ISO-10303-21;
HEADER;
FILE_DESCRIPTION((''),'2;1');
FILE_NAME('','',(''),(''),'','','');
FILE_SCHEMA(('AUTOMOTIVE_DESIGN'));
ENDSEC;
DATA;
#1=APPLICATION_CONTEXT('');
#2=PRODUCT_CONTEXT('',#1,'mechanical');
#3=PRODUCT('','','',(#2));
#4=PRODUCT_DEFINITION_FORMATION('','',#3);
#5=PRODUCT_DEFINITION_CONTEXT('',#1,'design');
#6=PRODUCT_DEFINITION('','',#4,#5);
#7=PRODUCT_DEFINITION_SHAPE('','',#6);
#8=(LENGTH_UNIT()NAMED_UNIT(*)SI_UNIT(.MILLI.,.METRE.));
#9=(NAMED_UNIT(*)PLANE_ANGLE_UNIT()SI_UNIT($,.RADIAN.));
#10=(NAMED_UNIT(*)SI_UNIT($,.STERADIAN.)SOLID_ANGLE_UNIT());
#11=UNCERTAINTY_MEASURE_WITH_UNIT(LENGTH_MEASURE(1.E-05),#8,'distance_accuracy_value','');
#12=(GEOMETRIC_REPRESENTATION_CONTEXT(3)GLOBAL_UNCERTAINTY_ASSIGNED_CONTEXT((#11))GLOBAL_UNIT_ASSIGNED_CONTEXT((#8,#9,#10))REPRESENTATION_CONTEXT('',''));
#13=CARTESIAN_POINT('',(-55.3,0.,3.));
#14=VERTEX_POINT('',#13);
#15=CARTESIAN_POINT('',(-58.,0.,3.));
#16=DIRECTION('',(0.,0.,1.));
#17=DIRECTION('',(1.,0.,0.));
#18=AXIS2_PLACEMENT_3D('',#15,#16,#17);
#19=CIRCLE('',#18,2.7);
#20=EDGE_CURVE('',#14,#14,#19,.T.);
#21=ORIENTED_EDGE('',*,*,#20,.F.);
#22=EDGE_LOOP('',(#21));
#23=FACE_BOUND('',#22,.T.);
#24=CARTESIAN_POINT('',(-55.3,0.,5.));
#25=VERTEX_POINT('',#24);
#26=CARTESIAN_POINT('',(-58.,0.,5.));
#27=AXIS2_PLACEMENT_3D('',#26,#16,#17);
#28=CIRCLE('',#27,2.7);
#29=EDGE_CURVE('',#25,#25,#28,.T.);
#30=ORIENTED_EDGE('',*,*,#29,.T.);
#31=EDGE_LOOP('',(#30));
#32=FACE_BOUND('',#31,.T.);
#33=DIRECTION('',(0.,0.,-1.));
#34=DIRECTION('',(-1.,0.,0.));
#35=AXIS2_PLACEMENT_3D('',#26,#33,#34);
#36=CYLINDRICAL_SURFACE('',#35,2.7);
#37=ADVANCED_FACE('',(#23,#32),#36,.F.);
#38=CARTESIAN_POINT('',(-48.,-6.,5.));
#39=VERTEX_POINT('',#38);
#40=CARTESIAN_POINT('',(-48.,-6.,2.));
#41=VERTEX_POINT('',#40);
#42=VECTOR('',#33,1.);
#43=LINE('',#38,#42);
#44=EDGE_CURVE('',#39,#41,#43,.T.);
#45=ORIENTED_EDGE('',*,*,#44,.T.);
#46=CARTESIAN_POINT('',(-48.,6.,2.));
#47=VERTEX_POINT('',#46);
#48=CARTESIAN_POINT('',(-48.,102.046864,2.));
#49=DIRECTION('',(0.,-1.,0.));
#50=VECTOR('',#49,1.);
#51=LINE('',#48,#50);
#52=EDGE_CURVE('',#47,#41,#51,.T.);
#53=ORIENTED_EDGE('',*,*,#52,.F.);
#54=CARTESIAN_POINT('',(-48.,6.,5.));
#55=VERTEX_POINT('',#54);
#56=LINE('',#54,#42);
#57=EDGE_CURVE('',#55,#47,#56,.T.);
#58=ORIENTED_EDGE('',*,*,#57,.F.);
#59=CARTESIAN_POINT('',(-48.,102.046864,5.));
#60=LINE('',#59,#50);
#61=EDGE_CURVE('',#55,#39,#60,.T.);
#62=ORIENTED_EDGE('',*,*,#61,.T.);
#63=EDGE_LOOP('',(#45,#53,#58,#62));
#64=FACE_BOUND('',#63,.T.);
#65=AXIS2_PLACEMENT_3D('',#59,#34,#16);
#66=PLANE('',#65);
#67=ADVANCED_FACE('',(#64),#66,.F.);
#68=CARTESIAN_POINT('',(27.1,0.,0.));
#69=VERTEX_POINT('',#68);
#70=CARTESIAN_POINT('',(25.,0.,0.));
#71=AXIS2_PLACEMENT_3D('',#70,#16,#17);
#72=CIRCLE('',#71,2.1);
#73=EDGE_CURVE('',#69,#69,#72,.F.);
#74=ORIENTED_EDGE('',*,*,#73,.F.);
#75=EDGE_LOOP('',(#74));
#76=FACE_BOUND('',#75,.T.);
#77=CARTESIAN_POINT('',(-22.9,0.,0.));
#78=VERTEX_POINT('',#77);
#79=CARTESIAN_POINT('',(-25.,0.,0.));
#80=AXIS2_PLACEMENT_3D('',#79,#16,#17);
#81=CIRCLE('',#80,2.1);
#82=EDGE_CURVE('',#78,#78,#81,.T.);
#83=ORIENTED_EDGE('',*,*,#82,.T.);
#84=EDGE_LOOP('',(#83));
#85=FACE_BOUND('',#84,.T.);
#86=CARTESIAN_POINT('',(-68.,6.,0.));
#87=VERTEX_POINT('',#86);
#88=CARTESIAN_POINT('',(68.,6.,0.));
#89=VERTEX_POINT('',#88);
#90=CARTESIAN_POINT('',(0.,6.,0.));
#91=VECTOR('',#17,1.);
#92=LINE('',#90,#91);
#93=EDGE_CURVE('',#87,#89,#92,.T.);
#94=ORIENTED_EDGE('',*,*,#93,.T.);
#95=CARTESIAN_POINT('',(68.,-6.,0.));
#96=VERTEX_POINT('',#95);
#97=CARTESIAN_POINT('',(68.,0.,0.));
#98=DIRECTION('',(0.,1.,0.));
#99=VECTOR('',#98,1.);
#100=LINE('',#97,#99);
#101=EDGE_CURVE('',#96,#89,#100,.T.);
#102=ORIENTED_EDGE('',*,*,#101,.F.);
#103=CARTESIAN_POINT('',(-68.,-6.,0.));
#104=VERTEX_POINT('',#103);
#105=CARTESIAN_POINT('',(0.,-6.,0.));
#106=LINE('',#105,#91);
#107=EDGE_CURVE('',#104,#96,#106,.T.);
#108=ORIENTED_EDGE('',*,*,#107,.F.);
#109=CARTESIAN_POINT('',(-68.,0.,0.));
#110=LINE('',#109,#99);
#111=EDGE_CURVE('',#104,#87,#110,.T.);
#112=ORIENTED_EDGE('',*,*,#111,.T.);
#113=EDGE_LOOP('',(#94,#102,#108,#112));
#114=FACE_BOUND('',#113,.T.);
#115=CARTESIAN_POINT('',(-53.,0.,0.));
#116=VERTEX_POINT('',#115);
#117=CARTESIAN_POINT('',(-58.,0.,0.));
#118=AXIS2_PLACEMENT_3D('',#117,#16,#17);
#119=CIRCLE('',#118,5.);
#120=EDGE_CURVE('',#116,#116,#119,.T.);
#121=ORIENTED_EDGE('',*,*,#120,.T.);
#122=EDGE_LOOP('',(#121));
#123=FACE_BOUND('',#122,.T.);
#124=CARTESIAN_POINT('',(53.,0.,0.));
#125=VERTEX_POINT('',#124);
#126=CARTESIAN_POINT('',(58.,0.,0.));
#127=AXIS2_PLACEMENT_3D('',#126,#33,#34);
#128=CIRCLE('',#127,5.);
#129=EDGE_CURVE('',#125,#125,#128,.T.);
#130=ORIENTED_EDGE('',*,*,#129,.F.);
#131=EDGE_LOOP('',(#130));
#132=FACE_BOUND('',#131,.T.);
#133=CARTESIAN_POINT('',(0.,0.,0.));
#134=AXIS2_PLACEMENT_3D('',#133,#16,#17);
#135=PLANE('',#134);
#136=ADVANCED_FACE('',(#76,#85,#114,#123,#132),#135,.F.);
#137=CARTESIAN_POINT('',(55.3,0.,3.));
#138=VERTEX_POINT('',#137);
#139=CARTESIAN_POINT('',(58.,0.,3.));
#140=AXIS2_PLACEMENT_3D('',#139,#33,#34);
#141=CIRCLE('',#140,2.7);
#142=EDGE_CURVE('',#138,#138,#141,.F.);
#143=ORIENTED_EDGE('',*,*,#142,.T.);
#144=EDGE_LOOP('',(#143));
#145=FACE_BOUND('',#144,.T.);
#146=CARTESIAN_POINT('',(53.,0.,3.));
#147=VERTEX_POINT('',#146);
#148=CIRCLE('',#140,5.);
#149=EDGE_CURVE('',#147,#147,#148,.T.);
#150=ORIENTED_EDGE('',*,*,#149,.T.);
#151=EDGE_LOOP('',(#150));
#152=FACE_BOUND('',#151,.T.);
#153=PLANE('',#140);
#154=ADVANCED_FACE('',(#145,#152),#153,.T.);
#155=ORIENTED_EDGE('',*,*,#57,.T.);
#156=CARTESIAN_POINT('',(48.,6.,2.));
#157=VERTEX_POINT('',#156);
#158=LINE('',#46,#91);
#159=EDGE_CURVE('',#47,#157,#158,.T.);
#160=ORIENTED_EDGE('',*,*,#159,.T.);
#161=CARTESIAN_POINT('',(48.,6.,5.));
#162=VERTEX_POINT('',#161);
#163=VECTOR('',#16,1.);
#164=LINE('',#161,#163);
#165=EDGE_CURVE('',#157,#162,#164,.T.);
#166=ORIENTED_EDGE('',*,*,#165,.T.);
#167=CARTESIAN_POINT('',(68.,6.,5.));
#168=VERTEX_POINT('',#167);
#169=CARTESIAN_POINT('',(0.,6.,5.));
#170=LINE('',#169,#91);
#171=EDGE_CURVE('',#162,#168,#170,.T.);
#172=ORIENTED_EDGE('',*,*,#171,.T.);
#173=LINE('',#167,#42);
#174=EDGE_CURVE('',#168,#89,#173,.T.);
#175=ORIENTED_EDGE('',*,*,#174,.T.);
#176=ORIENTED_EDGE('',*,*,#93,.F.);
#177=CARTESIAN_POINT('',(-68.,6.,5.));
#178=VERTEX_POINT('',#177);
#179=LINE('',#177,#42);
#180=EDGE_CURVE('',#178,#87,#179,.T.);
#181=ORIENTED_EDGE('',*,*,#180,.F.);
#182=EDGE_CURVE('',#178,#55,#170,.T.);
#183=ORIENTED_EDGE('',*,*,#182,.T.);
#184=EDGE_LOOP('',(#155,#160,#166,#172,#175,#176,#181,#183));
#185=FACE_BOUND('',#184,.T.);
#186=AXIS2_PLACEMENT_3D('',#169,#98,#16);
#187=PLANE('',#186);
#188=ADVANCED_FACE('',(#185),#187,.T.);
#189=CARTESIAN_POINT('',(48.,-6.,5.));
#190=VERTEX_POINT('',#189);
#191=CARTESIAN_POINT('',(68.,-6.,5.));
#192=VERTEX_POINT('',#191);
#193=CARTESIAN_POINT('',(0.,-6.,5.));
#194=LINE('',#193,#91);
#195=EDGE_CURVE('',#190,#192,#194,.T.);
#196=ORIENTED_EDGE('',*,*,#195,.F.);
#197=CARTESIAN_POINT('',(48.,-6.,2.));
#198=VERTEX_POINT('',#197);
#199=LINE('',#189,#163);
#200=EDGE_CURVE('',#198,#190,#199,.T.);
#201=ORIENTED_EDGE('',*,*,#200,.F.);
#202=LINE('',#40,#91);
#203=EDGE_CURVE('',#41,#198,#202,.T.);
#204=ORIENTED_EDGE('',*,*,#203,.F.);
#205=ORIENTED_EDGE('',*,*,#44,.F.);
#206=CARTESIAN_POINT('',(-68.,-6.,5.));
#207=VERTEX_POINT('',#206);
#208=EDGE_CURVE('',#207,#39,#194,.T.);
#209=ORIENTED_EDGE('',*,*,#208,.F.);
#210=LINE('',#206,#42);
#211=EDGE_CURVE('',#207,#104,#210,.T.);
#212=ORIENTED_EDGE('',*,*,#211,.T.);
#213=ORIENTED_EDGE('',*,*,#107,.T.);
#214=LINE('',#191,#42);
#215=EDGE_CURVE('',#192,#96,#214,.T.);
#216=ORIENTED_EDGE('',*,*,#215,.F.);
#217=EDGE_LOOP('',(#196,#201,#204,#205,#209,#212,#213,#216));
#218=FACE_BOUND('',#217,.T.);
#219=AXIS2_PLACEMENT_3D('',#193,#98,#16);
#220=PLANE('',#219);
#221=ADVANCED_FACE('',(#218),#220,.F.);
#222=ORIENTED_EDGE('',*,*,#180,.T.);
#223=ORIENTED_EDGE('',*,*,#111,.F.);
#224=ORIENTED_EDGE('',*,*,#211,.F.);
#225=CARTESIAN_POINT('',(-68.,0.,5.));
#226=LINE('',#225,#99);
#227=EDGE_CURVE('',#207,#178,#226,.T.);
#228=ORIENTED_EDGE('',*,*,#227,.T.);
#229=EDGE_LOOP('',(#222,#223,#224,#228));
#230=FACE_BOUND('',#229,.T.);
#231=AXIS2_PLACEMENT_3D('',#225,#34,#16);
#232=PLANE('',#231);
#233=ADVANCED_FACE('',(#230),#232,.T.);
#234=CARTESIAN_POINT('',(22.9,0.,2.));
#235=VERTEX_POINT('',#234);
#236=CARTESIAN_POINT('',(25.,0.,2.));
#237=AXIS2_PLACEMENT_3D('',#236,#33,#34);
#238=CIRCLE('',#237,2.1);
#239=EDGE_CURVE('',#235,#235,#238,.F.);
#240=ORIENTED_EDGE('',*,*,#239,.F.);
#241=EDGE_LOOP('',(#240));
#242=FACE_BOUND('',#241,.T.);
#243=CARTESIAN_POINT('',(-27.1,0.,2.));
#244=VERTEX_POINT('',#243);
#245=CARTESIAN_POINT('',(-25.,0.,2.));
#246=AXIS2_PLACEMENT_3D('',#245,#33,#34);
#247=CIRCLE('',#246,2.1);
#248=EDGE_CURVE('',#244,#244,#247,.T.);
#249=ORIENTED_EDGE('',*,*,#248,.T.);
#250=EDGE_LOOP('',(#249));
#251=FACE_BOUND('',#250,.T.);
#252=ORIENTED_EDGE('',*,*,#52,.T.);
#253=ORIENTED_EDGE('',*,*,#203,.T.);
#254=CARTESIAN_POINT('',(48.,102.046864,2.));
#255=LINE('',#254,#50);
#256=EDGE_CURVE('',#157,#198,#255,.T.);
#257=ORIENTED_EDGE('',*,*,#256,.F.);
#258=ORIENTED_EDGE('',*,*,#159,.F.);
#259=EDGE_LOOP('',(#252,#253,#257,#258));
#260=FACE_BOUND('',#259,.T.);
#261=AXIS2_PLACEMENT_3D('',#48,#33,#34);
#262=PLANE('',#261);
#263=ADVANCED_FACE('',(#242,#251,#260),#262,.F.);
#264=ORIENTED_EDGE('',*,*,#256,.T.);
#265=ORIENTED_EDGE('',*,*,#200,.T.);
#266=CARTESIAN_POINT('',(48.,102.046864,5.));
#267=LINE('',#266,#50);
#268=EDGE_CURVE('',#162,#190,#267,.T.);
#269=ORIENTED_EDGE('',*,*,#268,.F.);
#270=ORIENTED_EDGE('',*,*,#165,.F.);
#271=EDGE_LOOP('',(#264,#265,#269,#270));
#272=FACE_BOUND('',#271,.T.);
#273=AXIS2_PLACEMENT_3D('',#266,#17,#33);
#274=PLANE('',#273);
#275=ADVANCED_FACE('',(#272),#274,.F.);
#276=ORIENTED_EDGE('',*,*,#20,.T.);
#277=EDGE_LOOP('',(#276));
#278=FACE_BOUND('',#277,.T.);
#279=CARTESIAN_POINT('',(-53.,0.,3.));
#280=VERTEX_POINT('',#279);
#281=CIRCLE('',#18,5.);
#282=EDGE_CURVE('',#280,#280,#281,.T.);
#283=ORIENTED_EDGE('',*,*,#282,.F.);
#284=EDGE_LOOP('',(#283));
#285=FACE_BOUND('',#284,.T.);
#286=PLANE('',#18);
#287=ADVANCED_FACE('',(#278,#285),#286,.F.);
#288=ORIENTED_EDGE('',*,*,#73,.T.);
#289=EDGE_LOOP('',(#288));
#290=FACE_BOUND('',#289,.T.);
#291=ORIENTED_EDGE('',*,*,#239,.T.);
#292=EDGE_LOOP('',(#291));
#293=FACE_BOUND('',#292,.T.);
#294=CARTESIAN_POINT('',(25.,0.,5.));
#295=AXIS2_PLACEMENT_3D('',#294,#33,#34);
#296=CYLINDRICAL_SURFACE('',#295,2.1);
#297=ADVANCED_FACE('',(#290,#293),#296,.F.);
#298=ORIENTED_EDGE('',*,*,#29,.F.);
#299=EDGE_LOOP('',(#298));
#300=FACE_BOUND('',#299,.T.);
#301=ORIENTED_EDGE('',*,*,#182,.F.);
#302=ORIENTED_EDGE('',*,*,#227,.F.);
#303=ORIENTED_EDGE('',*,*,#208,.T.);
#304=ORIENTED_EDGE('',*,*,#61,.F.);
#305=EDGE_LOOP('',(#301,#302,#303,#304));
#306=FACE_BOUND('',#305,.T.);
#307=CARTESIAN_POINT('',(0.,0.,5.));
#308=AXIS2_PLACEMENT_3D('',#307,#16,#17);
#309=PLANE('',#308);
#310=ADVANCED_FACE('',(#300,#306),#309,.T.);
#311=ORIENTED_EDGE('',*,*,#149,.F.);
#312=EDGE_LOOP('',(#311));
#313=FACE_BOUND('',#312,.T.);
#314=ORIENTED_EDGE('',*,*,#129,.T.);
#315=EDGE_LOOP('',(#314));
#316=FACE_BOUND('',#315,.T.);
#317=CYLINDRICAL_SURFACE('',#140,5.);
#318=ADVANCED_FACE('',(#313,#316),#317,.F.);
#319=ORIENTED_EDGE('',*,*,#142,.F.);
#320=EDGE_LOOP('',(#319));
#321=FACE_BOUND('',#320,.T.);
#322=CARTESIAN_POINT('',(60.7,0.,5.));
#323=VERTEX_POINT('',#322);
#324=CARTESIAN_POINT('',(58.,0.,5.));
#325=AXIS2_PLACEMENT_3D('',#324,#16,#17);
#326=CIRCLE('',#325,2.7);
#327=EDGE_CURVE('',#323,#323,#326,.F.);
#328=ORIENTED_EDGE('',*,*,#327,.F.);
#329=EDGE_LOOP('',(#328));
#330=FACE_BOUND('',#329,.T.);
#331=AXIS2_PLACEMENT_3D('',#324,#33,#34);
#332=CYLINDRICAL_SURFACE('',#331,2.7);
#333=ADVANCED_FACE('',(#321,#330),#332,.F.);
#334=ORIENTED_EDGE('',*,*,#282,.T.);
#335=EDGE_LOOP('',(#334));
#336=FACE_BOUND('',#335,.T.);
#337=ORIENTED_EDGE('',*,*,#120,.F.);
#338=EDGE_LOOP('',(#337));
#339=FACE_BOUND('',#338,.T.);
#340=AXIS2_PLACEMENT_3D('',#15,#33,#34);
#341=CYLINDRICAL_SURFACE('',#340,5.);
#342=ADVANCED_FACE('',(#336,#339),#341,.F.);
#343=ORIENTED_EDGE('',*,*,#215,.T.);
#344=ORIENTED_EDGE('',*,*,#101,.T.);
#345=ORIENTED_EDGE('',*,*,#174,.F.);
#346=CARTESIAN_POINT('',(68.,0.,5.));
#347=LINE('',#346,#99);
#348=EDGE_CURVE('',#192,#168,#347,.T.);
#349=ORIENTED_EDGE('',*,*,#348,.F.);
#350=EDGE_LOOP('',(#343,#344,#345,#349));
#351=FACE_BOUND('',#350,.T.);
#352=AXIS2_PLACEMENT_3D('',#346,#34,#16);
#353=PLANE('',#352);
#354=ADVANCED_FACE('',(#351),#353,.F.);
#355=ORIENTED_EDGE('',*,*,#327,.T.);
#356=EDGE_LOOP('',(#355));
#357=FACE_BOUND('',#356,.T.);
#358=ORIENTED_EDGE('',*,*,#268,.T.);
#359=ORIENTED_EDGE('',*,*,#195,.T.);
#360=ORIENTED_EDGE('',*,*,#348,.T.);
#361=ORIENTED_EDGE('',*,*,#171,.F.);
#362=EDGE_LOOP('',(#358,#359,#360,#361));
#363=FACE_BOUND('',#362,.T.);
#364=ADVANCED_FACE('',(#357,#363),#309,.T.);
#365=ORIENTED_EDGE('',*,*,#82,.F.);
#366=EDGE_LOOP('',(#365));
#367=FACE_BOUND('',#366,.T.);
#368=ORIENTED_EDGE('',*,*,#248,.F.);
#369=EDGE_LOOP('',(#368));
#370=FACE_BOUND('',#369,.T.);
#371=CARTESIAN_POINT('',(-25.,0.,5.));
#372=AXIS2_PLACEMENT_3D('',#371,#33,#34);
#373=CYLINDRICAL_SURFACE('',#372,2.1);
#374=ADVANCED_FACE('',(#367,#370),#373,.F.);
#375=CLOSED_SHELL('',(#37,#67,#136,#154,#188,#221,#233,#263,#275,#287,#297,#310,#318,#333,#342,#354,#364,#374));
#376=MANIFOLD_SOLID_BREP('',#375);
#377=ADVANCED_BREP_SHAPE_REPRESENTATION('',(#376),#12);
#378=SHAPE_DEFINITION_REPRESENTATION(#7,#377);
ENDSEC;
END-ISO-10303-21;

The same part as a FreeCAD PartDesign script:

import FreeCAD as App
import Part
import Sketcher

V = App.Vector
Q = App.Units.Quantity

doc = App.newDocument("Part")
params = doc.addObject("Spreadsheet::Sheet", "Params")
for row, (alias, value) in enumerate([
    ("sketch1_diameter", "5.4 mm"),
    ("sketch1_diameter2", "4.2 mm"),
    ("sketch1_width", "136 mm"),
    ("sketch1_height", "12 mm"),
    ("pad1_length", "5 mm"),
    ("sketch2_width", "96 mm"),
    ("sketch2_height", "3 mm"),
    ("pocket1_length", "12 mm"),
    ("sketch3_diameter", "10 mm"),
    ("pocket2_length", "3 mm"),
], start=1):
    params.set(f"A{row}", alias)
    params.set(f"B{row}", "=" + value)
    params.setAlias(f"B{row}", alias)

body = doc.addObject("PartDesign::Body", "Body")

# Sketch on XY plane
sketch1 = doc.addObject("Sketcher::SketchObject", "Sketch")
body.addObject(sketch1)
sketch1.AttachmentSupport = (doc.XY_Plane, [""])
sketch1.MapMode = "FlatFace"
sketch1.addGeometry([
    Part.LineSegment(V(-68, 6, 0), V(-68, -6, 0)),  # 0
    Part.LineSegment(V(-68, -6, 0), V(68, -6, 0)),  # 1
    Part.LineSegment(V(68, -6, 0), V(68, 6, 0)),  # 2
    Part.LineSegment(V(68, 6, 0), V(-68, 6, 0)),  # 3
    Part.Circle(V(-58, 0, 0), V(0, 0, 1), 2.7),  # 4
    Part.Circle(V(-25, 0, 0), V(0, 0, 1), 2.1),  # 5
    Part.Circle(V(25, 0, 0), V(0, 0, 1), 2.1),  # 6
    Part.Circle(V(58, 0, 0), V(0, 0, 1), 2.7),  # 7
], False)
sketch1.addConstraint([
    Sketcher.Constraint("Coincident", 0, 2, 1, 1),
    Sketcher.Constraint("Coincident", 1, 2, 2, 1),
    Sketcher.Constraint("Coincident", 2, 2, 3, 1),
    Sketcher.Constraint("Coincident", 3, 2, 0, 1),
    Sketcher.Constraint("Vertical", 0),
    Sketcher.Constraint("Horizontal", 1),
    Sketcher.Constraint("Vertical", 2),
    Sketcher.Constraint("Horizontal", 3),
    Sketcher.Constraint("Equal", 5, 6),
    Sketcher.Constraint("Equal", 4, 7),
    Sketcher.Constraint("Symmetric", 5, 3, 6, 3, -1, 1),
    Sketcher.Constraint("Symmetric", 4, 3, 7, 3, -1, 1),
    Sketcher.Constraint("Symmetric", 0, 2, 2, 2, -1, 1),
    Sketcher.Constraint("PointOnObject", 4, 3, -1),
    Sketcher.Constraint("PointOnObject", 5, 3, -1),
    Sketcher.Constraint("Diameter", 4, Q("5.4 mm")),
    Sketcher.Constraint("Diameter", 5, Q("4.2 mm")),
    Sketcher.Constraint("DistanceX", 1, 1, 1, 2, Q("136 mm")),
    Sketcher.Constraint("DistanceY", 0, 2, 0, 1, Q("12 mm")),
    Sketcher.Constraint("DistanceX", 4, 3, -1, 1, Q("58 mm")),
    Sketcher.Constraint("DistanceX", 5, 3, -1, 1, Q("25 mm")),
])
sketch1.setExpression("Constraints[15]", "Params.sketch1_diameter")
sketch1.setExpression("Constraints[16]", "Params.sketch1_diameter2")
sketch1.setExpression("Constraints[17]", "Params.sketch1_width")
sketch1.setExpression("Constraints[18]", "Params.sketch1_height")
pad1 = doc.addObject("PartDesign::Pad", "Pad")
body.addObject(pad1)
pad1.Profile = sketch1
pad1.setExpression("Length", "Params.pad1_length")

# Sketch on XZ plane
sketch2 = doc.addObject("Sketcher::SketchObject", "Sketch001")
body.addObject(sketch2)
sketch2.AttachmentSupport = (doc.XZ_Plane, [""])
sketch2.MapMode = "FlatFace"
sketch2.AttachmentOffset = App.Placement(V(0, 0, 6), App.Rotation())
sketch2.addGeometry([
    Part.LineSegment(V(-48, 5, 0), V(-48, 2, 0)),
    Part.LineSegment(V(-48, 2, 0), V(48, 2, 0)),
    Part.LineSegment(V(48, 2, 0), V(48, 5, 0)),
    Part.LineSegment(V(48, 5, 0), V(-48, 5, 0)),
], False)
sketch2.addConstraint([
    Sketcher.Constraint("Coincident", 0, 2, 1, 1),
    Sketcher.Constraint("Coincident", 1, 2, 2, 1),
    Sketcher.Constraint("Coincident", 2, 2, 3, 1),
    Sketcher.Constraint("Coincident", 3, 2, 0, 1),
    Sketcher.Constraint("Vertical", 0),
    Sketcher.Constraint("Horizontal", 1),
    Sketcher.Constraint("Vertical", 2),
    Sketcher.Constraint("Horizontal", 3),
    Sketcher.Constraint("DistanceX", 1, 1, 1, 2, Q("96 mm")),
    Sketcher.Constraint("DistanceY", 0, 2, 0, 1, Q("3 mm")),
    Sketcher.Constraint("DistanceX", 0, 2, -1, 1, Q("48 mm")),
    Sketcher.Constraint("DistanceY", -1, 1, 0, 2, Q("2 mm")),
])
sketch2.setExpression("Constraints[8]", "Params.sketch2_width")
sketch2.setExpression("Constraints[9]", "Params.sketch2_height")
pocket1 = doc.addObject("PartDesign::Pocket", "Pocket")
body.addObject(pocket1)
pocket1.Profile = sketch2
pocket1.setExpression("Length", "Params.pocket1_length")

# Sketch on XY plane
sketch3 = doc.addObject("Sketcher::SketchObject", "Sketch002")
body.addObject(sketch3)
sketch3.AttachmentSupport = (doc.XY_Plane, [""])
sketch3.MapMode = "FlatFace"
sketch3.addGeometry([
    Part.Circle(V(-58, 0, 0), V(0, 0, 1), 5),
    Part.Circle(V(58, 0, 0), V(0, 0, 1), 5),
], False)
sketch3.addConstraint([
    Sketcher.Constraint("Equal", 0, 1),
    Sketcher.Constraint("Symmetric", 0, 3, 1, 3, -1, 1),
    Sketcher.Constraint("PointOnObject", 0, 3, -1),
    Sketcher.Constraint("Diameter", 0, Q("10 mm")),
    Sketcher.Constraint("DistanceX", 0, 3, -1, 1, Q("58 mm")),
])
sketch3.setExpression("Constraints[3]", "Params.sketch3_diameter")
pocket2 = doc.addObject("PartDesign::Pocket", "Pocket001")
body.addObject(pocket2)
pocket2.Profile = sketch3
pocket2.setExpression("Length", "Params.pocket2_length")
pocket2.Reversed = True

doc.recompute()
